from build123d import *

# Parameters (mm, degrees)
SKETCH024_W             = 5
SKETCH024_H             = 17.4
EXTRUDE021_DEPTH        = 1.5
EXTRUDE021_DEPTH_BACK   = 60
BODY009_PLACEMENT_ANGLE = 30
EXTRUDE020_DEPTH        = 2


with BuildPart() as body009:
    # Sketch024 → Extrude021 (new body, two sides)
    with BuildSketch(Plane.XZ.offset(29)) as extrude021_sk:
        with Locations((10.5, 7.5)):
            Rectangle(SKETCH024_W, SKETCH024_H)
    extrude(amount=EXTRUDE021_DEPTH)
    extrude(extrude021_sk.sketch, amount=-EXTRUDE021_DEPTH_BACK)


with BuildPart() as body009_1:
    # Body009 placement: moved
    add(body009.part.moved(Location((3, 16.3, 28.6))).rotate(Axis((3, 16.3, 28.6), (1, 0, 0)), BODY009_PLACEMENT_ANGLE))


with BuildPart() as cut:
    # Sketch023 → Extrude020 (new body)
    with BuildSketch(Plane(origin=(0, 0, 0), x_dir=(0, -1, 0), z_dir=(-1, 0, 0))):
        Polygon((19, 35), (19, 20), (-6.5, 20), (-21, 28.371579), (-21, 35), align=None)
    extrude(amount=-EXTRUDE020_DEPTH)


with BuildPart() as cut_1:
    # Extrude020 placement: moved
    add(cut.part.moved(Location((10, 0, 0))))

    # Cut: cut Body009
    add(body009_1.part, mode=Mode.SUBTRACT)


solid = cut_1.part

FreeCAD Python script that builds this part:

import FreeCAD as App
import Part
import Sketcher

V = App.Vector
Q = App.Units.Quantity


def add_polygon(sketch, points):
    """Adds a closed chain of lines whose ends are joined by coincident constraints."""
    first, n = sketch.GeometryCount, len(points)
    for a, b in zip(points, points[1:] + points[:1]):
        sketch.addGeometry(Part.LineSegment(App.Vector(*a, 0), App.Vector(*b, 0)), False)
    for i in range(n):
        sketch.addConstraint(Sketcher.Constraint("Coincident", first + i, 2, first + (i + 1) % n, 1))

doc = App.newDocument("Part")
body = doc.addObject("PartDesign::Body", "Body")

sketch1 = doc.addObject("Sketcher::SketchObject", "Sketch")
body.addObject(sketch1)
sketch1.AttachmentSupport = (doc.XZ_Plane, [""])
sketch1.MapMode = "FlatFace"
sketch1.AttachmentOffset = App.Placement(V(0, 0, 29), App.Rotation())
add_polygon(sketch1, [(8, 16), (8, -1), (13, -1), (13, 16)])
sketch1.addConstraint([
    Sketcher.Constraint("Vertical", 0),
    Sketcher.Constraint("Horizontal", 1),
    Sketcher.Constraint("Vertical", 2),
    Sketcher.Constraint("Horizontal", 3),
    Sketcher.Constraint("DistanceX", 1, 1, 1, 2, Q("5 mm")),
    Sketcher.Constraint("DistanceY", 0, 2, 0, 1, Q("17.4 mm")),
    Sketcher.Constraint("DistanceX", -1, 1, 0, 2, Q("8 mm")),
    Sketcher.Constraint("DistanceY", 0, 2, -1, 1, Q("1.2 mm")),
])
pad1 = doc.addObject("PartDesign::Pad", "Pad")
body.addObject(pad1)
pad1.Profile = sketch1
pad1.Type = "TwoLengths"
pad1.Length = 1.5
pad1.Length2 = 60
body2 = doc.addObject("PartDesign::Body", "Body001")
doc.recompute()

body.Placement = App.Placement(V(3, 16.3, 28.6), App.Rotation(V(1, 0, 0), 30))
boolean = doc.addObject("PartDesign::Boolean", "Boolean")
body2.addObject(boolean)
boolean.Type = "Fuse"
boolean.addObjects([body])
body3 = doc.addObject("PartDesign::Body", "Body002")

sketch2 = doc.addObject("Sketcher::SketchObject", "Sketch001")
body3.addObject(sketch2)
sketch2.AttachmentSupport = (doc.getObject("YZ_Plane002"), [""])
sketch2.MapMode = "FlatFace"
add_polygon(sketch2, [(-19, 20), (-19, 35), (21, 35), (21, 28), (6, 20)])
sketch2.addConstraint([
    Sketcher.Constraint("Vertical", 0),
    Sketcher.Constraint("Horizontal", 1),
    Sketcher.Constraint("Vertical", 2),
    Sketcher.Constraint("Horizontal", 4),
    Sketcher.Constraint("DistanceX", 1, 1, 1, 2, Q("40 mm")),
    Sketcher.Constraint("DistanceY", 0, 1, 0, 2, Q("15 mm")),
    Sketcher.Constraint("Angle", 3, Q("-150 deg")),
    Sketcher.Constraint("DistanceX", 4, 2, 4, 1, Q("25.5 mm")),
    Sketcher.Constraint("DistanceX", 0, 2, -1, 1, Q("19 mm")),
    Sketcher.Constraint("DistanceY", -1, 1, 0, 2, Q("35 mm")),
])
pad2 = doc.addObject("PartDesign::Pad", "Pad001")
body3.addObject(pad2)
pad2.Profile = sketch2
pad2.Length = 2
body4 = doc.addObject("PartDesign::Body", "Body003")
doc.recompute()

body3.Placement = App.Placement(V(10, 0, 0), App.Rotation(V(0, 0, 1), 0))
boolean2 = doc.addObject("PartDesign::Boolean", "Boolean001")
body4.addObject(boolean2)
boolean2.Type = "Fuse"
boolean2.addObjects([body3])
doc.recompute()

boolean3 = doc.addObject("PartDesign::Boolean", "Boolean002")
body4.addObject(boolean3)
boolean3.Type = "Cut"
boolean3.addObjects([body2])

doc.recompute()
